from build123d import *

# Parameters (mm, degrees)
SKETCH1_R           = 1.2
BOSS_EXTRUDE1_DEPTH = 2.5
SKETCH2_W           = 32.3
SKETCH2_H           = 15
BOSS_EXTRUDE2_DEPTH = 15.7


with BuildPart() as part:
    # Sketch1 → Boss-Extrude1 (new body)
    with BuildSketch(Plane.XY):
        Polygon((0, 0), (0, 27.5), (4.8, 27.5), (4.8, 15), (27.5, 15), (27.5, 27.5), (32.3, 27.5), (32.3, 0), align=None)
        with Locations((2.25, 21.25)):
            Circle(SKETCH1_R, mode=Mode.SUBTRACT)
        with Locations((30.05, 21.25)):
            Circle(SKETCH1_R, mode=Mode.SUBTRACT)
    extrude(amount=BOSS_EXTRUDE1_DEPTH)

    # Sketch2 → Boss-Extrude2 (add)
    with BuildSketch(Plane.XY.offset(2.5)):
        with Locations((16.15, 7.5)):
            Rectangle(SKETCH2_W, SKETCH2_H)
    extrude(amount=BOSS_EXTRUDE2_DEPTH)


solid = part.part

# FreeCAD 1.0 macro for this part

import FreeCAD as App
import Part
import Sketcher


def add_polygon(sketch, points):
    """Adds a closed chain of lines whose ends are joined by coincident constraints."""
    first, n = sketch.GeometryCount, len(points)
    for a, b in zip(points, points[1:] + points[:1]):
        sketch.addGeometry(Part.LineSegment(App.Vector(*a, 0), App.Vector(*b, 0)), False)
    for i in range(n):
        sketch.addConstraint(Sketcher.Constraint("Coincident", first + i, 2, first + (i + 1) % n, 1))

doc = App.newDocument("Part")
body = doc.addObject("PartDesign::Body", "Body")

sketch1 = body.newObject("Sketcher::SketchObject", "Sketch")
sketch1.AttachmentSupport = (doc.getObject("XY_Plane"), [""])
sketch1.MapMode = "FlatFace"
add_polygon(sketch1, [(0, 27.5), (0, 0), (32.3, 0), (32.3, 27.5), (27.5, 27.5), (27.5, 15), (4.8, 15), (4.8, 27.5)])
sketch1.addGeometry(Part.Circle(App.Vector(30.1, 21.2, 0), App.Vector(0, 0, 1), 1.2), False)
sketch1.addGeometry(Part.Circle(App.Vector(2.2, 21.2, 0), App.Vector(0, 0, 1), 1.2), False)
sketch1.addConstraint([
    Sketcher.Constraint("Vertical", 0),
    Sketcher.Constraint("Horizontal", 1),
    Sketcher.Constraint("Vertical", 2),
    Sketcher.Constraint("Horizontal", 3),
    Sketcher.Constraint("Vertical", 4),
    Sketcher.Constraint("Horizontal", 5),
    Sketcher.Constraint("Vertical", 6),
    Sketcher.Constraint("Horizontal", 7),
    Sketcher.Constraint("Coincident", 0, 2, -1, 1),
    Sketcher.Constraint("Equal", 8, 9),
    Sketcher.Constraint("Horizontal", 8, 3, 9, 3),
    Sketcher.Constraint("Horizontal", 3, 2, 6, 2),
    Sketcher.Constraint("Equal", 3, 7),
    Sketcher.Constraint("Diameter", 8, 2.4),
    Sketcher.Constraint("DistanceX", 1, 1, 1, 2, 32.3),
    Sketcher.Constraint("DistanceX", 3, 2, 3, 1, 4.8),
    Sketcher.Constraint("DistanceY", 0, 2, 0, 1, 27.5),
    Sketcher.Constraint("DistanceY", 4, 2, 4, 1, 12.5),
    Sketcher.Constraint("DistanceX", 9, 3, 8, 3, 27.8),
    Sketcher.Constraint("DistanceX", -1, 1, 8, 3, 30.05),
    Sketcher.Constraint("DistanceY", -1, 1, 8, 3, 21.25),
])
pad1 = body.newObject("PartDesign::Pad", "Pad")
pad1.Profile = sketch1
pad1.Length = 2.5

sketch2 = body.newObject("Sketcher::SketchObject", "Sketch001")
sketch2.AttachmentSupport = (doc.getObject("XY_Plane"), [""])
sketch2.MapMode = "FlatFace"
sketch2.AttachmentOffset = App.Placement(App.Vector(0, 0, 2.5), App.Rotation())
add_polygon(sketch2, [(0, 15), (0, 0), (32, 0), (32, 15)])
sketch2.addConstraint([
    Sketcher.Constraint("Vertical", 0),
    Sketcher.Constraint("Horizontal", 1),
    Sketcher.Constraint("Vertical", 2),
    Sketcher.Constraint("Horizontal", 3),
    Sketcher.Constraint("Coincident", 0, 2, -1, 1),
    Sketcher.Constraint("DistanceY", 0, 2, 0, 1, 15.0),
    Sketcher.Constraint("DistanceX", 1, 1, 1, 2, 32.3),
])
pad2 = body.newObject("PartDesign::Pad", "Pad001")
pad2.Profile = sketch2
pad2.Length = 15.7

doc.recompute()
